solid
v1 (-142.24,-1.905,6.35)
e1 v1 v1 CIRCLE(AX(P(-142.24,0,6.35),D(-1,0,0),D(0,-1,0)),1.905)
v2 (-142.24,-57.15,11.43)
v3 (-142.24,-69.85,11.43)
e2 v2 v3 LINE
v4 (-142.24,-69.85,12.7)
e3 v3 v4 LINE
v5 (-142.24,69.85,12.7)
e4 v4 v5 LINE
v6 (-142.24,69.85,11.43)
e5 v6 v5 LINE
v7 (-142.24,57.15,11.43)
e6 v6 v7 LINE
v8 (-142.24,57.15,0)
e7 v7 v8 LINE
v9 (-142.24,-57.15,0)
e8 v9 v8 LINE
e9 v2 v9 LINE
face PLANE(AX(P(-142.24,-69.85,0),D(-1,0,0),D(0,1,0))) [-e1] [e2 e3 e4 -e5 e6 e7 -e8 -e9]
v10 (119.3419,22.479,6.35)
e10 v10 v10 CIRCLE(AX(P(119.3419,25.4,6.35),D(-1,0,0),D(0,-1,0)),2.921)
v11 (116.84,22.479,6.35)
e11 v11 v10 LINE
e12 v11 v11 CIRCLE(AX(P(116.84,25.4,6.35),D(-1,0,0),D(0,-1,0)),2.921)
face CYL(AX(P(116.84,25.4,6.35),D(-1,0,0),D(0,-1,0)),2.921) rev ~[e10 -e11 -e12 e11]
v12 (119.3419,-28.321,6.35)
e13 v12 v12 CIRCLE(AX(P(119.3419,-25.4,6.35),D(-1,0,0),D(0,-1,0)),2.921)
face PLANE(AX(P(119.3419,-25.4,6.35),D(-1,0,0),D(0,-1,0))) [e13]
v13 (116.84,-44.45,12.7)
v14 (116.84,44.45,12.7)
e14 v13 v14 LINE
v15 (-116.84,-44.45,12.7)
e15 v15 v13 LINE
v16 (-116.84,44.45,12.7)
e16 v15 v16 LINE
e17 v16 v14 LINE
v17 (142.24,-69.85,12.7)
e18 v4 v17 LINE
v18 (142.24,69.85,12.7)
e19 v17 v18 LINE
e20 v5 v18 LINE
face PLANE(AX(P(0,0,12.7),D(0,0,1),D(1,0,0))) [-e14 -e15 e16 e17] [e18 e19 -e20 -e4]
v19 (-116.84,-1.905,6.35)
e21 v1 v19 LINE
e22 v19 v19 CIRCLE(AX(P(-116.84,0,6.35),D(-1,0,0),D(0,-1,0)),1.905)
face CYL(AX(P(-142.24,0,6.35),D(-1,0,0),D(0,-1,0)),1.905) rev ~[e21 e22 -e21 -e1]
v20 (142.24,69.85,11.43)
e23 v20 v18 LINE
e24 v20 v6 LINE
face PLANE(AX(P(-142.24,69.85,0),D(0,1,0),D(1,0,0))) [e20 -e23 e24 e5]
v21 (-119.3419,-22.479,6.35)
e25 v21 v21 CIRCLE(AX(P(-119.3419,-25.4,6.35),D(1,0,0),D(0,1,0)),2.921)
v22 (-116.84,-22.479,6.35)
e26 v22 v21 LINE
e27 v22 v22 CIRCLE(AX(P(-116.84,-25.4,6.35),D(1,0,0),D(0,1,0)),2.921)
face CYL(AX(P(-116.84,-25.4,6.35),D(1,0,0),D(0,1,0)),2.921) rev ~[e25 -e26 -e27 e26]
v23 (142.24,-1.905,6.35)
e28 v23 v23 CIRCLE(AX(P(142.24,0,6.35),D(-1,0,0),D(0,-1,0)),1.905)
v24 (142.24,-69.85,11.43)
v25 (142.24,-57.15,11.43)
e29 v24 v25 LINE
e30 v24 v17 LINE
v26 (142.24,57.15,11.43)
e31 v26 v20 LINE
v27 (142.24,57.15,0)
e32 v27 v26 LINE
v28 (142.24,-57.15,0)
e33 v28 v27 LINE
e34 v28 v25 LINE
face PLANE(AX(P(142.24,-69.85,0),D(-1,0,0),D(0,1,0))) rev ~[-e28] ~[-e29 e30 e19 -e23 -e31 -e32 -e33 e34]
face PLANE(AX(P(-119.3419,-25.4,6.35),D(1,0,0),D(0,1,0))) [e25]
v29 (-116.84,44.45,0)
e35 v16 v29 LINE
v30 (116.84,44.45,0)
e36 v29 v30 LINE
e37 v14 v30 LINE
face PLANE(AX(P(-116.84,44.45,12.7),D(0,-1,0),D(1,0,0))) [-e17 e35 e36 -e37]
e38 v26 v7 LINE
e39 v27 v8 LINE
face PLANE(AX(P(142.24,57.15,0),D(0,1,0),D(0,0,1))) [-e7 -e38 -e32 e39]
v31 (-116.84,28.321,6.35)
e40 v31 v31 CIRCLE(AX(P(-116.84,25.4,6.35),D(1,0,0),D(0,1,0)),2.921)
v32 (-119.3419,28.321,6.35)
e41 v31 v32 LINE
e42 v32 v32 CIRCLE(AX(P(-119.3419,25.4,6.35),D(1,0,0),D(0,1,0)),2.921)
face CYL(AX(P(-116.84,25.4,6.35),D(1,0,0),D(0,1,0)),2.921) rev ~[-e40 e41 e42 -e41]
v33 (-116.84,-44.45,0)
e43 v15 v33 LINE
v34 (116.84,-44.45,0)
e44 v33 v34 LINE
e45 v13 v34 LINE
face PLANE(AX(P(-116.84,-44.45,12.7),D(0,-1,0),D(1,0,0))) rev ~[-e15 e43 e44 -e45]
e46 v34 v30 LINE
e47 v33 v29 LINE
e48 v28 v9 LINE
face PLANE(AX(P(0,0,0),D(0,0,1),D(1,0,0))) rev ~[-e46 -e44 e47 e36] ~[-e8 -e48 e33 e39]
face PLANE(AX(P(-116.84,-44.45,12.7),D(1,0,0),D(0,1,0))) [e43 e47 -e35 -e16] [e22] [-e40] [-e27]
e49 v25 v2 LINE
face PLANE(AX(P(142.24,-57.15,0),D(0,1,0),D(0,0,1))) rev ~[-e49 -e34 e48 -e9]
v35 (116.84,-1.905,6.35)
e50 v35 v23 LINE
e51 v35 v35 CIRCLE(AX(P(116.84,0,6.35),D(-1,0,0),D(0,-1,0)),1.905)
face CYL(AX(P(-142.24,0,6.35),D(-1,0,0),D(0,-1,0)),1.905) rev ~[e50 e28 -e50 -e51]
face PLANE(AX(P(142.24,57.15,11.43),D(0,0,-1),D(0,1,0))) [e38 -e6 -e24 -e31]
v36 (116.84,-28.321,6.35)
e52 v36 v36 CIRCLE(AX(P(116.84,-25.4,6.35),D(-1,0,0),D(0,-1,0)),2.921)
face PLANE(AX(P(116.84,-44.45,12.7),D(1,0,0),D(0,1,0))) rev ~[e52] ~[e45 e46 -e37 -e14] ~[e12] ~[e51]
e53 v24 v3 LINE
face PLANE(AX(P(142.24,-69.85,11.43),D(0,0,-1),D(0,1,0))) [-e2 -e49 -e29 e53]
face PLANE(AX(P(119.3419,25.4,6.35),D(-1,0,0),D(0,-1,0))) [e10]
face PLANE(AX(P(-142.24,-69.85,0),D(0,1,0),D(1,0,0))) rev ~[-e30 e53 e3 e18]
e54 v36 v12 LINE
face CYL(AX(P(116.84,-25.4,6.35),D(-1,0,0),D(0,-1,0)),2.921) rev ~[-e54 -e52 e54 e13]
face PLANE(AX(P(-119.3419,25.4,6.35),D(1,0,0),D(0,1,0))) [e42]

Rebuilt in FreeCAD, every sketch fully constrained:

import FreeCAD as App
import Part
import Sketcher

V = App.Vector
Q = App.Units.Quantity


def add_polygon(sketch, points):
    """Adds a closed chain of lines whose ends are joined by coincident constraints."""
    first, n = sketch.GeometryCount, len(points)
    for a, b in zip(points, points[1:] + points[:1]):
        sketch.addGeometry(Part.LineSegment(App.Vector(*a, 0), App.Vector(*b, 0)), False)
    for i in range(n):
        sketch.addConstraint(Sketcher.Constraint("Coincident", first + i, 2, first + (i + 1) % n, 1))

doc = App.newDocument("Part")
params = doc.addObject("Spreadsheet::Sheet", "Params")
for row, (alias, value) in enumerate([
    ("sketch1_width", "11.2 in"),
    ("sketch1_height", "5.5 in"),
    ("pad1_length", "0.5 in"),
    ("sketch2_width", "9.2 in"),
    ("sketch2_height", "3.5 in"),
    ("pocket1_length", "1 in"),
    ("sketch3_diameter", "0.15 in"),
    ("pocket2_length", "20 in"),
    ("sketch4_diameter", "0.23 in"),
    ("pocket3_length", "0.0985 in"),
    ("sketch5_diameter", "0.23 in"),
    ("pocket4_length", "0.0985 in"),
    ("sketch6_width", "0.5 in"),
    ("sketch6_height", "0.45 in"),
    ("pocket5_length", "20 in"),
    ("sketch7_width", "0.5 in"),
    ("sketch7_height", "0.45 in"),
    ("pocket6_length", "20 in"),
], start=1):
    params.set(f"A{row}", alias)
    params.set(f"B{row}", "=" + value)
    params.setAlias(f"B{row}", alias)

body = doc.addObject("PartDesign::Body", "Body")

# Sketch on XY plane
sketch1 = doc.addObject("Sketcher::SketchObject", "Sketch")
body.addObject(sketch1)
sketch1.AttachmentSupport = (doc.XY_Plane, [""])
sketch1.MapMode = "FlatFace"
add_polygon(sketch1, [(-142.24, 69.85), (-142.24, -69.85), (142.24, -69.85), (142.24, 69.85)])  # lines 0-3
sketch1.addConstraint(Sketcher.Constraint("Vertical", 0))
sketch1.addConstraint(Sketcher.Constraint("Horizontal", 1))
sketch1.addConstraint(Sketcher.Constraint("Vertical", 2))
sketch1.addConstraint(Sketcher.Constraint("Horizontal", 3))
sketch1.addConstraint(Sketcher.Constraint("Symmetric", 0, 2, 2, 2, -1, 1))
sketch1.addConstraint(Sketcher.Constraint("DistanceX", 1, 1, 1, 2, Q("11.2 in")))
sketch1.addConstraint(Sketcher.Constraint("DistanceY", 0, 2, 0, 1, Q("5.5 in")))
sketch1.setExpression("Constraints[9]", "Params.sketch1_width")
sketch1.setExpression("Constraints[10]", "Params.sketch1_height")
pad1 = doc.addObject("PartDesign::Pad", "Pad")
body.addObject(pad1)
pad1.Profile = sketch1
pad1.setExpression("Length", "Params.pad1_length")

# Sketch on XY plane
sketch2 = doc.addObject("Sketcher::SketchObject", "Sketch001")
body.addObject(sketch2)
sketch2.AttachmentSupport = (doc.XY_Plane, [""])
sketch2.MapMode = "FlatFace"
sketch2.AttachmentOffset = App.Placement(V(0, 0, 0.5 * 25.4), App.Rotation())
add_polygon(sketch2, [(-116.84, 44.45), (-116.84, -44.45), (116.84, -44.45), (116.84, 44.45)])  # lines 0-3
sketch2.addConstraint(Sketcher.Constraint("Vertical", 0))
sketch2.addConstraint(Sketcher.Constraint("Horizontal", 1))
sketch2.addConstraint(Sketcher.Constraint("Vertical", 2))
sketch2.addConstraint(Sketcher.Constraint("Horizontal", 3))
sketch2.addConstraint(Sketcher.Constraint("Symmetric", 0, 2, 2, 2, -1, 1))
sketch2.addConstraint(Sketcher.Constraint("DistanceX", 1, 1, 1, 2, Q("9.2 in")))
sketch2.addConstraint(Sketcher.Constraint("DistanceY", 0, 2, 0, 1, Q("3.5 in")))
sketch2.setExpression("Constraints[9]", "Params.sketch2_width")
sketch2.setExpression("Constraints[10]", "Params.sketch2_height")
pocket1 = doc.addObject("PartDesign::Pocket", "Pocket")
body.addObject(pocket1)
pocket1.Profile = sketch2
pocket1.setExpression("Length", "Params.pocket1_length")

# Sketch on YZ plane
sketch3 = doc.addObject("Sketcher::SketchObject", "Sketch002")
body.addObject(sketch3)
sketch3.AttachmentSupport = (doc.YZ_Plane, [""])
sketch3.MapMode = "FlatFace"
sketch3.AttachmentOffset = App.Placement(V(0, 0, -5.6 * 25.4), App.Rotation())
sketch3.addGeometry(Part.Circle(V(0, 6.35, 0), V(0, 0, 1), 1.905), False)
sketch3.addConstraint(Sketcher.Constraint("PointOnObject", 0, 3, -2))
sketch3.addConstraint(Sketcher.Constraint("Diameter", 0, Q("0.15 in")))
sketch3.addConstraint(Sketcher.Constraint("DistanceY", -1, 1, 0, 3, Q("0.25 in")))
sketch3.setExpression("Constraints[1]", "Params.sketch3_diameter")
pocket2 = doc.addObject("PartDesign::Pocket", "Pocket001")
body.addObject(pocket2)
pocket2.Profile = sketch3
pocket2.setExpression("Length", "Params.pocket2_length")
pocket2.Reversed = True

# Sketch on YZ plane
sketch4 = doc.addObject("Sketcher::SketchObject", "Sketch003")
body.addObject(sketch4)
sketch4.AttachmentSupport = (doc.YZ_Plane, [""])
sketch4.MapMode = "FlatFace"
sketch4.AttachmentOffset = App.Placement(V(0, 0, -4.6 * 25.4), App.Rotation())
sketch4.addGeometry(Part.Circle(V(-25.4, 6.35, 0), V(0, 0, 1), 2.921), False)
sketch4.addGeometry(Part.Circle(V(25.4, 6.35, 0), V(0, 0, 1), 2.921), False)
sketch4.addConstraint(Sketcher.Constraint("Equal", 0, 1))
sketch4.addConstraint(Sketcher.Constraint("Symmetric", 0, 3, 1, 3, -2))
sketch4.addConstraint(Sketcher.Constraint("Diameter", 0, Q("0.23 in")))
sketch4.addConstraint(Sketcher.Constraint("DistanceX", 0, 3, -1, 1, Q("1 in")))
sketch4.addConstraint(Sketcher.Constraint("DistanceY", -1, 1, 0, 3, Q("0.25 in")))
sketch4.setExpression("Constraints[2]", "Params.sketch4_diameter")
pocket3 = doc.addObject("PartDesign::Pocket", "Pocket002")
body.addObject(pocket3)
pocket3.Profile = sketch4
pocket3.setExpression("Length", "Params.pocket3_length")

# Sketch on YZ plane
sketch5 = doc.addObject("Sketcher::SketchObject", "Sketch004")
body.addObject(sketch5)
sketch5.AttachmentSupport = (doc.YZ_Plane, [""])
sketch5.MapMode = "FlatFace"
sketch5.AttachmentOffset = App.Placement(V(0, 0, 4.6 * 25.4), App.Rotation())
sketch5.addGeometry(Part.Circle(V(25.4, 6.35, 0), V(0, 0, 1), 2.921), False)
sketch5.addGeometry(Part.Circle(V(-25.4, 6.35, 0), V(0, 0, 1), 2.921), False)
sketch5.addConstraint(Sketcher.Constraint("Equal", 0, 1))
sketch5.addConstraint(Sketcher.Constraint("Symmetric", 0, 3, 1, 3, -2))
sketch5.addConstraint(Sketcher.Constraint("Diameter", 0, Q("0.23 in")))
sketch5.addConstraint(Sketcher.Constraint("DistanceX", -1, 1, 0, 3, Q("1 in")))
sketch5.addConstraint(Sketcher.Constraint("DistanceY", -1, 1, 0, 3, Q("0.25 in")))
sketch5.setExpression("Constraints[2]", "Params.sketch5_diameter")
pocket4 = doc.addObject("PartDesign::Pocket", "Pocket003")
body.addObject(pocket4)
pocket4.Profile = sketch5
pocket4.setExpression("Length", "Params.pocket4_length")
pocket4.Reversed = True

# Sketch on YZ plane
sketch6 = doc.addObject("Sketcher::SketchObject", "Sketch005")
body.addObject(sketch6)
sketch6.AttachmentSupport = (doc.YZ_Plane, [""])
sketch6.MapMode = "FlatFace"
sketch6.AttachmentOffset = App.Placement(V(0, 0, 5.6 * 25.4), App.Rotation())
add_polygon(sketch6, [(-69.85, 11.43), (-69.85, 0), (-57.15, 0), (-57.15, 11.43)])  # lines 0-3
sketch6.addConstraint(Sketcher.Constraint("Vertical", 0))
sketch6.addConstraint(Sketcher.Constraint("Horizontal", 1))
sketch6.addConstraint(Sketcher.Constraint("Vertical", 2))
sketch6.addConstraint(Sketcher.Constraint("Horizontal", 3))
sketch6.addConstraint(Sketcher.Constraint("PointOnObject", 0, 2, -1))
sketch6.addConstraint(Sketcher.Constraint("DistanceX", 1, 1, 1, 2, Q("0.5 in")))
sketch6.addConstraint(Sketcher.Constraint("DistanceY", 0, 2, 0, 1, Q("0.45 in")))
sketch6.addConstraint(Sketcher.Constraint("DistanceX", 0, 2, -1, 1, Q("2.75 in")))
sketch6.setExpression("Constraints[9]", "Params.sketch6_width")
sketch6.setExpression("Constraints[10]", "Params.sketch6_height")
pocket5 = doc.addObject("PartDesign::Pocket", "Pocket004")
body.addObject(pocket5)
pocket5.Profile = sketch6
pocket5.setExpression("Length", "Params.pocket5_length")

# Sketch on YZ plane
sketch7 = doc.addObject("Sketcher::SketchObject", "Sketch006")
body.addObject(sketch7)
sketch7.AttachmentSupport = (doc.YZ_Plane, [""])
sketch7.MapMode = "FlatFace"
sketch7.AttachmentOffset = App.Placement(V(0, 0, 5.6 * 25.4), App.Rotation())
add_polygon(sketch7, [(57.15, 11.43), (57.15, 0), (69.85, 0), (69.85, 11.43)])  # lines 0-3
sketch7.addConstraint(Sketcher.Constraint("Vertical", 0))
sketch7.addConstraint(Sketcher.Constraint("Horizontal", 1))
sketch7.addConstraint(Sketcher.Constraint("Vertical", 2))
sketch7.addConstraint(Sketcher.Constraint("Horizontal", 3))
sketch7.addConstraint(Sketcher.Constraint("PointOnObject", 0, 2, -1))
sketch7.addConstraint(Sketcher.Constraint("DistanceX", 1, 1, 1, 2, Q("0.5 in")))
sketch7.addConstraint(Sketcher.Constraint("DistanceY", 0, 2, 0, 1, Q("0.45 in")))
sketch7.addConstraint(Sketcher.Constraint("DistanceX", -1, 1, 0, 2, Q("2.25 in")))
sketch7.setExpression("Constraints[9]", "Params.sketch7_width")
sketch7.setExpression("Constraints[10]", "Params.sketch7_height")
pocket6 = doc.addObject("PartDesign::Pocket", "Pocket005")
body.addObject(pocket6)
pocket6.Profile = sketch7
pocket6.setExpression("Length", "Params.pocket6_length")

doc.recompute()
